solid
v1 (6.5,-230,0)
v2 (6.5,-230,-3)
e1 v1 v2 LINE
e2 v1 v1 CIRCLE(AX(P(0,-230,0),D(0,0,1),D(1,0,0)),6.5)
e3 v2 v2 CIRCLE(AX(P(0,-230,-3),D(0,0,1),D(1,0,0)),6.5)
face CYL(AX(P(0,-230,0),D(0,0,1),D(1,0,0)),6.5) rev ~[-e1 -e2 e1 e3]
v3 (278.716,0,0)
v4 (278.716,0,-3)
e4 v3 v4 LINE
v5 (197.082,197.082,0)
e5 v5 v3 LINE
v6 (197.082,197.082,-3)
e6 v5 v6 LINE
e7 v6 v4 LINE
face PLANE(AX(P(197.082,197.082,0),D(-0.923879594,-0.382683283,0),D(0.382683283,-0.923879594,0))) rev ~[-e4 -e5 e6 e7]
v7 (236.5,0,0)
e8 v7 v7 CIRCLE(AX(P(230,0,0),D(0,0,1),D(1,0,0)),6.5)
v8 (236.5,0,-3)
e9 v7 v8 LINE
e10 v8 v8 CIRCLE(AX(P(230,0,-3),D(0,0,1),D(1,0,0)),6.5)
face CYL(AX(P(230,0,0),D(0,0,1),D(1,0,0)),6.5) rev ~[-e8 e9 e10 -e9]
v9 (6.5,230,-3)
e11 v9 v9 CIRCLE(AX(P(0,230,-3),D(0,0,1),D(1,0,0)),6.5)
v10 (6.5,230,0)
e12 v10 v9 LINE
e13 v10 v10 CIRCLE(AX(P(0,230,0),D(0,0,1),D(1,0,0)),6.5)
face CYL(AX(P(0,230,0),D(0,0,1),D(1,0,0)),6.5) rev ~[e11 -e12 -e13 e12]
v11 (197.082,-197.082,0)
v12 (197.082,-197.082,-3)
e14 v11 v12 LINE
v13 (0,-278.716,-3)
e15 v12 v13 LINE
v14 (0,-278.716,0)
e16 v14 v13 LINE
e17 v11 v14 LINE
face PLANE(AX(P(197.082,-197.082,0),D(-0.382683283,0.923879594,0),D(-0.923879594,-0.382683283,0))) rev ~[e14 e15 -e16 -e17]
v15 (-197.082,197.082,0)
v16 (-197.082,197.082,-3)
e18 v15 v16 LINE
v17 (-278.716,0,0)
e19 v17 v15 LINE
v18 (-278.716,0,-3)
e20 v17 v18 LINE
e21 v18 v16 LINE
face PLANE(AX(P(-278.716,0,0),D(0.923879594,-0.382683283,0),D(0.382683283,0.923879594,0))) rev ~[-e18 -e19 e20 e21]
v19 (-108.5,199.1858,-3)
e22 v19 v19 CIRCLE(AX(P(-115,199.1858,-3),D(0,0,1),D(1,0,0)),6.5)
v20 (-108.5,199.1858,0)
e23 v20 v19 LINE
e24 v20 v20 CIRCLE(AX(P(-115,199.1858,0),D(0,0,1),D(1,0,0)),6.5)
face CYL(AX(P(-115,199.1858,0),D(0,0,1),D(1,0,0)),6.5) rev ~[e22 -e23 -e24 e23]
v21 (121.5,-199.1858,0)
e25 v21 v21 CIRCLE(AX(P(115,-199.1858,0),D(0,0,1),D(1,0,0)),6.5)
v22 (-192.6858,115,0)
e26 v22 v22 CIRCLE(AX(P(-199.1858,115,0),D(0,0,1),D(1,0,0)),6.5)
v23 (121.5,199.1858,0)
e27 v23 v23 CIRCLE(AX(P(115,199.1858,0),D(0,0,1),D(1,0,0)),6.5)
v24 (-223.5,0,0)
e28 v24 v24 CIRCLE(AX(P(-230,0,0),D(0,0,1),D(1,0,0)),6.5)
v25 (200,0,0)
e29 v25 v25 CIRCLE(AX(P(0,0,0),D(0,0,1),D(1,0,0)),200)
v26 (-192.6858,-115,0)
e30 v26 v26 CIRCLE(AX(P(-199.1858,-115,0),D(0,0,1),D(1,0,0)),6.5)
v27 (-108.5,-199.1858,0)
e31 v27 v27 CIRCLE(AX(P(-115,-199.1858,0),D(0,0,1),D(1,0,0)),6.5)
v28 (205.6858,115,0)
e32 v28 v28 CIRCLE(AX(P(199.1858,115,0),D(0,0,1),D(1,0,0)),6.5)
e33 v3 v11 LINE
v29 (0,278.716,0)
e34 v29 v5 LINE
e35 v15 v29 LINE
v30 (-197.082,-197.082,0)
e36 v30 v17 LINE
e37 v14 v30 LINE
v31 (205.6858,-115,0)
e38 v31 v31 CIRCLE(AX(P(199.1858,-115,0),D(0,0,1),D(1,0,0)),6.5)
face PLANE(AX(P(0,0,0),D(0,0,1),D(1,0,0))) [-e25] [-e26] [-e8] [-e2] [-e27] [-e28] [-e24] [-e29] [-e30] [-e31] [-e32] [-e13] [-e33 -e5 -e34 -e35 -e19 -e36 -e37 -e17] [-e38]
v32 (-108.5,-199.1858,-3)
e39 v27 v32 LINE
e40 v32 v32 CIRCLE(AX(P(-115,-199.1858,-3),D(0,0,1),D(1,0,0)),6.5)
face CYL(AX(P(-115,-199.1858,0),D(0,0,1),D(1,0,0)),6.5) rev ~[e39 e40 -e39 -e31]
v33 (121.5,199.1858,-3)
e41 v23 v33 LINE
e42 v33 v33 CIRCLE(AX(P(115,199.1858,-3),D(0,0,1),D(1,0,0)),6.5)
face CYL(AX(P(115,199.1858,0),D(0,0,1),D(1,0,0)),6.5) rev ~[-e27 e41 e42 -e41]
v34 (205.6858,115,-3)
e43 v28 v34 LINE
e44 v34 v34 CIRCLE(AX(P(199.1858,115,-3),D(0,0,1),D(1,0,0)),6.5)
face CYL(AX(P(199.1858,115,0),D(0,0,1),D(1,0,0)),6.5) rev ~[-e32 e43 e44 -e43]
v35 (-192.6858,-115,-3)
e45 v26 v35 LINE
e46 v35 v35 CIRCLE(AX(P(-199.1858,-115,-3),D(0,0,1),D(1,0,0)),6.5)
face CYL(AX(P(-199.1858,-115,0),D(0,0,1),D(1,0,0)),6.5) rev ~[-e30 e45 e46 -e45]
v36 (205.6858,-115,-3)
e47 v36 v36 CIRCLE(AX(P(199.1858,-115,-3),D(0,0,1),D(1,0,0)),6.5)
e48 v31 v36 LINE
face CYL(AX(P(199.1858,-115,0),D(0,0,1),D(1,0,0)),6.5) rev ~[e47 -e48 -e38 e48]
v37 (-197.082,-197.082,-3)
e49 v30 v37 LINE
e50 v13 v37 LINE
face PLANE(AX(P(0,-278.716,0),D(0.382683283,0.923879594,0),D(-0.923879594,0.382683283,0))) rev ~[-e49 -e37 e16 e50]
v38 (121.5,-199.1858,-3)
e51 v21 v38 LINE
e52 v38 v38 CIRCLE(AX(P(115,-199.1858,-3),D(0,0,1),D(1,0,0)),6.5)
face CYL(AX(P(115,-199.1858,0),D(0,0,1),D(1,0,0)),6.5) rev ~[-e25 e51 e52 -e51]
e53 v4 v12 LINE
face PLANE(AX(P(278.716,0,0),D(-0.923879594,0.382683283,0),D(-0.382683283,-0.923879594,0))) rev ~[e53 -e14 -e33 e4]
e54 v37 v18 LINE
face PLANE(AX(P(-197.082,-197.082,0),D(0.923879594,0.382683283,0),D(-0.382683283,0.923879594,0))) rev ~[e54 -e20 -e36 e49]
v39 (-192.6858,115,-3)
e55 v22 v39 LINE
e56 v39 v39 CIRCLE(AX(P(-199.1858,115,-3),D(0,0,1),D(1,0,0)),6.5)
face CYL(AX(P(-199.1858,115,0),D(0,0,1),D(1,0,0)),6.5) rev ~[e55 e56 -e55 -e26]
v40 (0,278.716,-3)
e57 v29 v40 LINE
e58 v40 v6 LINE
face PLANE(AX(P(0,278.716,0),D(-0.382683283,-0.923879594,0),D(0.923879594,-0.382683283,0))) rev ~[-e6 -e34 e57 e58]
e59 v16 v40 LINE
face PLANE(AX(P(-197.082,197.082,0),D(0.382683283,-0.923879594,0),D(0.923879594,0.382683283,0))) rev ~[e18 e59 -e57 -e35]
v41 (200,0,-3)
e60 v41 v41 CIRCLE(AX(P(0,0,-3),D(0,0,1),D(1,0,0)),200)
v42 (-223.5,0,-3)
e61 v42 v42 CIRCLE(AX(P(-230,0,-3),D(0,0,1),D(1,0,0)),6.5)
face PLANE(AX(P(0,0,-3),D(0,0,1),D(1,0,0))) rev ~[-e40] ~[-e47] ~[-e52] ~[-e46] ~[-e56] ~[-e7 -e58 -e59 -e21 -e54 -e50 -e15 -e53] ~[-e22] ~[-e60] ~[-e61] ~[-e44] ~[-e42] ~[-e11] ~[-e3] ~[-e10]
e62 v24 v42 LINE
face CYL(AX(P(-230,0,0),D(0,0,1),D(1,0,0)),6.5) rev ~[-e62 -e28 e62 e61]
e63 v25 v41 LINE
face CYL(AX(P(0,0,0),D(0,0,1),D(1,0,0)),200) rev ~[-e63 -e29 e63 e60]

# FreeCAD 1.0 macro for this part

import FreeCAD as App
import Part
import Sketcher
Q = App.Units.Quantity


def add_polygon(sketch, points):
    """Adds a closed chain of lines whose ends are joined by coincident constraints."""
    first, n = sketch.GeometryCount, len(points)
    for a, b in zip(points, points[1:] + points[:1]):
        sketch.addGeometry(Part.LineSegment(App.Vector(*a, 0), App.Vector(*b, 0)), False)
    for i in range(n):
        sketch.addConstraint(Sketcher.Constraint("Coincident", first + i, 2, first + (i + 1) % n, 1))

doc = App.newDocument("Part")
params = doc.addObject("Spreadsheet::Sheet", "Params")
for row, (alias, value) in enumerate([
    ("sketch1_diameter", "400 mm"),
    ("sketch1_length", "213.32 mm"),
    ("pad1_length", "3 mm"),
    ("sketch2_diameter", "13 mm"),
    ("pocket1_length", "3 mm"),
], start=1):
    params.set(f"A{row}", alias)
    params.set(f"B{row}", "=" + value)
    params.setAlias(f"B{row}", alias)

body = doc.addObject("PartDesign::Body", "Body")

sketch1 = body.newObject("Sketcher::SketchObject", "Sketch")
sketch1.AttachmentSupport = (doc.getObject("XY_Plane"), [""])
sketch1.MapMode = "FlatFace"
add_polygon(sketch1, [(0, 278.716), (-197.082, 197.082), (-278.716, 0), (-197.082, -197.082), (0, -278.716), (197.082, -197.082), (278.716, 0), (197.082, 197.082)])
sketch1.addGeometry(Part.Circle(App.Vector(0, 0, 0), App.Vector(0, 0, 1), 200), False)
sketch1.addConstraint(Sketcher.Constraint("Coincident", 8, 3, -1, 1))
sketch1.addConstraint(Sketcher.Constraint("Symmetric", 0, 2, 4, 2, -1, 1))
sketch1.addConstraint(Sketcher.Constraint("Symmetric", 1, 2, 5, 2, -1, 1))
sketch1.addConstraint(Sketcher.Constraint("Symmetric", 2, 2, 6, 2, -1, 1))
sketch1.addConstraint(Sketcher.Constraint("Symmetric", 3, 2, 7, 2, -1, 1))
sketch1.addConstraint(Sketcher.Constraint("Symmetric", 2, 2, 4, 2, -2))
sketch1.addConstraint(Sketcher.Constraint("PointOnObject", 1, 2, -1))
sketch1.addConstraint(Sketcher.Constraint("PointOnObject", 3, 2, -2))
sketch1.addConstraint(Sketcher.Constraint("Perpendicular", 0, 2))
sketch1.addConstraint(Sketcher.Constraint("Equal", 0, 1))
sketch1.addConstraint(Sketcher.Constraint("Diameter", 8, 400.0))
sketch1.addConstraint(Sketcher.Constraint("Angle", 0, Q("-157.5 deg")))
sketch1.addConstraint(Sketcher.Constraint("Distance", 0, 213.32))
sketch1.setExpression("Constraints[18]", "Params.sketch1_diameter")
sketch1.setExpression("Constraints[20]", "Params.sketch1_length")
pad1 = body.newObject("PartDesign::Pad", "Pad")
pad1.Profile = sketch1
pad1.setExpression("Length", "Params.pad1_length")
pad1.Reversed = True

sketch2 = body.newObject("Sketcher::SketchObject", "Sketch001")
sketch2.AttachmentSupport = (doc.getObject("XY_Plane"), [""])
sketch2.MapMode = "FlatFace"
sketch2.addGeometry(Part.Circle(App.Vector(0, 230, 0), App.Vector(0, 0, 1), 6.5), False)
sketch2.addGeometry(Part.Circle(App.Vector(-115, 199.1858, 0), App.Vector(0, 0, 1), 6.5), False)
sketch2.addGeometry(Part.Circle(App.Vector(-199.1858, 115, 0), App.Vector(0, 0, 1), 6.5), False)
sketch2.addGeometry(Part.Circle(App.Vector(-230, 0, 0), App.Vector(0, 0, 1), 6.5), False)
sketch2.addGeometry(Part.Circle(App.Vector(-199.1858, -115, 0), App.Vector(0, 0, 1), 6.5), False)
sketch2.addGeometry(Part.Circle(App.Vector(-115, -199.1858, 0), App.Vector(0, 0, 1), 6.5), False)
sketch2.addGeometry(Part.Circle(App.Vector(0, -230, 0), App.Vector(0, 0, 1), 6.5), False)
sketch2.addGeometry(Part.Circle(App.Vector(115, -199.1858, 0), App.Vector(0, 0, 1), 6.5), False)
sketch2.addGeometry(Part.Circle(App.Vector(199.1858, -115, 0), App.Vector(0, 0, 1), 6.5), False)
sketch2.addGeometry(Part.Circle(App.Vector(230, 0, 0), App.Vector(0, 0, 1), 6.5), False)
sketch2.addGeometry(Part.Circle(App.Vector(199.1858, 115, 0), App.Vector(0, 0, 1), 6.5), False)
sketch2.addGeometry(Part.Circle(App.Vector(115, 199.1858, 0), App.Vector(0, 0, 1), 6.5), False)
sketch2.addConstraint(Sketcher.Constraint("Equal", 0, 1))
sketch2.addConstraint(Sketcher.Constraint("Equal", 1, 2))
sketch2.addConstraint(Sketcher.Constraint("Equal", 2, 3))
sketch2.addConstraint(Sketcher.Constraint("Equal", 3, 4))
sketch2.addConstraint(Sketcher.Constraint("Equal", 4, 5))
sketch2.addConstraint(Sketcher.Constraint("Equal", 5, 6))
sketch2.addConstraint(Sketcher.Constraint("Equal", 6, 7))
sketch2.addConstraint(Sketcher.Constraint("Equal", 7, 8))
sketch2.addConstraint(Sketcher.Constraint("Equal", 8, 9))
sketch2.addConstraint(Sketcher.Constraint("Equal", 9, 10))
sketch2.addConstraint(Sketcher.Constraint("Equal", 10, 11))
sketch2.addConstraint(Sketcher.Constraint("Symmetric", 0, 3, 6, 3, -1, 1))
sketch2.addConstraint(Sketcher.Constraint("Symmetric", 1, 3, 7, 3, -1, 1))
sketch2.addConstraint(Sketcher.Constraint("Symmetric", 2, 3, 8, 3, -1, 1))
sketch2.addConstraint(Sketcher.Constraint("Symmetric", 3, 3, 9, 3, -1, 1))
sketch2.addConstraint(Sketcher.Constraint("Symmetric", 4, 3, 10, 3, -1, 1))
sketch2.addConstraint(Sketcher.Constraint("Symmetric", 5, 3, 11, 3, -1, 1))
sketch2.addConstraint(Sketcher.Constraint("Symmetric", 5, 3, 7, 3, -2))
sketch2.addConstraint(Sketcher.Constraint("Symmetric", 4, 3, 8, 3, -2))
sketch2.addConstraint(Sketcher.Constraint("PointOnObject", 0, 3, -2))
sketch2.addConstraint(Sketcher.Constraint("PointOnObject", 3, 3, -1))
sketch2.addConstraint(Sketcher.Constraint("Diameter", 0, 13.0))
sketch2.addConstraint(Sketcher.Constraint("DistanceY", -1, 1, 0, 3, 230.0))
sketch2.addConstraint(Sketcher.Constraint("DistanceX", 1, 3, -1, 1, 115.0))
sketch2.addConstraint(Sketcher.Constraint("DistanceY", -1, 1, 2, 3, 115.0))
sketch2.addConstraint(Sketcher.Constraint("DistanceX", 3, 3, -1, 1, 230.0))
sketch2.addConstraint(Sketcher.Constraint("DistanceY", -1, 1, 1, 3, 199.1858))
sketch2.addConstraint(Sketcher.Constraint("DistanceX", 2, 3, -1, 1, 199.1858))
sketch2.setExpression("Constraints[21]", "Params.sketch2_diameter")
pocket1 = body.newObject("PartDesign::Pocket", "Pocket")
pocket1.Profile = sketch2
pocket1.setExpression("Length", "Params.pocket1_length")

doc.recompute()
